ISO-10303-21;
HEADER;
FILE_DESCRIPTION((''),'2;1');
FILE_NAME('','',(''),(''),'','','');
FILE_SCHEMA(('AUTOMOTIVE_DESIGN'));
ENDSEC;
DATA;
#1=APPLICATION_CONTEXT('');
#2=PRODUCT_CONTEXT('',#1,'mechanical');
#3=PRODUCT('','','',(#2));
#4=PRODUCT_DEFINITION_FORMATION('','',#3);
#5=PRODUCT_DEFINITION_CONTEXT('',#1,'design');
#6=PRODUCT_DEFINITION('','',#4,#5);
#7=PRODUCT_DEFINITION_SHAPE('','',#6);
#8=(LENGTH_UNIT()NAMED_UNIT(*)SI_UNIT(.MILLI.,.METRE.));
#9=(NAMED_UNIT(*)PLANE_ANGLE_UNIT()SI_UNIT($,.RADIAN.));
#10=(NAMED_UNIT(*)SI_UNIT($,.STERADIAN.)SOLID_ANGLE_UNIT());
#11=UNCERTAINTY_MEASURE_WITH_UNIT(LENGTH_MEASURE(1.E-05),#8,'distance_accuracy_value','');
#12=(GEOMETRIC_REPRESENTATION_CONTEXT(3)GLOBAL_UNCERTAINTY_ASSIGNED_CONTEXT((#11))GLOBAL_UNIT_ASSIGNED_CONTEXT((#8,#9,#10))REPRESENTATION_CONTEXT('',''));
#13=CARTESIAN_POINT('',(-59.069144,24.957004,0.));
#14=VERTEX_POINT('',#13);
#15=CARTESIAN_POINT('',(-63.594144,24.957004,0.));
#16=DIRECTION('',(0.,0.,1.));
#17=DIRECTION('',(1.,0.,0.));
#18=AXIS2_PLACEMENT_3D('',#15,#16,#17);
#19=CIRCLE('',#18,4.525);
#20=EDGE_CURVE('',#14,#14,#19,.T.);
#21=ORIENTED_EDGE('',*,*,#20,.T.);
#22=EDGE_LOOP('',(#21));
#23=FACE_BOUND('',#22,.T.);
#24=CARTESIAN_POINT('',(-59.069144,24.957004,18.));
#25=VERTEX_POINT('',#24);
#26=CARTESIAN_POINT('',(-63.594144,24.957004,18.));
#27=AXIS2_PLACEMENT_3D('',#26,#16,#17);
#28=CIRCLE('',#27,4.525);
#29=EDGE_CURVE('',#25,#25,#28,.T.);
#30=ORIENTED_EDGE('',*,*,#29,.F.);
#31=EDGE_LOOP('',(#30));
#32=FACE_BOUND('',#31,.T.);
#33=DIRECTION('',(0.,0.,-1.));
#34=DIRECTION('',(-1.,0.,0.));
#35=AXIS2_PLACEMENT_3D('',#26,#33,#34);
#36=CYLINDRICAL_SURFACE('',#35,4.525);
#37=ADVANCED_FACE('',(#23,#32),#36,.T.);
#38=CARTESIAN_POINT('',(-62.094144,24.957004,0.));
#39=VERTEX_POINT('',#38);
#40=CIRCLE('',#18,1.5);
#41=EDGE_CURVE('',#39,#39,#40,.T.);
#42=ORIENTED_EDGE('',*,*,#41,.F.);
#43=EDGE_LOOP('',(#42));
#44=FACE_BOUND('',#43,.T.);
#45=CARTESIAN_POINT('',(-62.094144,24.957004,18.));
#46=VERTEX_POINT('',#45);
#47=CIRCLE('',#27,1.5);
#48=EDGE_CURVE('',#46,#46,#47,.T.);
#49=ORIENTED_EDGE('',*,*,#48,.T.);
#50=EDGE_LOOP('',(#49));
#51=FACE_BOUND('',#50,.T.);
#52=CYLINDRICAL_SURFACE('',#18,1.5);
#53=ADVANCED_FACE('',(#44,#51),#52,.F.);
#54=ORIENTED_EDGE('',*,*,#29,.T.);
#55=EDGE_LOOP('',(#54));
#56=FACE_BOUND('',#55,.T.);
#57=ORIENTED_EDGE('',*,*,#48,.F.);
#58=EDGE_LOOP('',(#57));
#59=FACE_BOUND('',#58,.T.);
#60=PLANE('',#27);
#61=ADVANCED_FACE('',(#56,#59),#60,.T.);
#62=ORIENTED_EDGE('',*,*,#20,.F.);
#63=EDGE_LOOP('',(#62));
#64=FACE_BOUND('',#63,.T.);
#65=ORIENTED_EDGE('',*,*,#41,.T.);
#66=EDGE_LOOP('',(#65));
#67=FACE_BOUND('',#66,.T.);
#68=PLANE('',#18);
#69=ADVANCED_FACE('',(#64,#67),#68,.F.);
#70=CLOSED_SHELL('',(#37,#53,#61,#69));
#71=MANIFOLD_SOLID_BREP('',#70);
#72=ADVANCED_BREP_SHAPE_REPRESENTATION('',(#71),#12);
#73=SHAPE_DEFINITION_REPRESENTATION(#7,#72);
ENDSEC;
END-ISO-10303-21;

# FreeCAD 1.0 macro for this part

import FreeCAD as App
import Part
import Sketcher

V = App.Vector
Q = App.Units.Quantity

doc = App.newDocument("Part")
body = doc.addObject("PartDesign::Body", "Body")

sketch1 = body.newObject("Sketcher::SketchObject", "Sketch")
sketch1.AttachmentSupport = (doc.getObject("XY_Plane"), [""])
sketch1.MapMode = "FlatFace"
sketch1.addGeometry(Part.Circle(V(-63.6, 25, 0), V(0, 0, 1), 4.5), False)
sketch1.addConstraint([
    Sketcher.Constraint("Diameter", 0, Q("9.05 mm")),
    Sketcher.Constraint("DistanceX", 0, 3, -1, 1, Q("63.594144 mm")),
    Sketcher.Constraint("DistanceY", -1, 1, 0, 3, Q("24.957004 mm")),
])
pad1 = body.newObject("PartDesign::Pad", "Pad")
pad1.Profile = sketch1
pad1.Length = 18

sketch2 = body.newObject("Sketcher::SketchObject", "Sketch001")
sketch2.AttachmentSupport = (doc.getObject("XY_Plane"), [""])
sketch2.MapMode = "FlatFace"
sketch2.AttachmentOffset = App.Placement(V(0, 0, 18), App.Rotation())
sketch2.addGeometry(Part.Circle(V(-63.6, 25, 0), V(0, 0, 1), 1.5), False)
sketch2.addConstraint([
    Sketcher.Constraint("Diameter", 0, Q("3 mm")),
    Sketcher.Constraint("DistanceX", 0, 3, -1, 1, Q("63.594144 mm")),
    Sketcher.Constraint("DistanceY", -1, 1, 0, 3, Q("24.957004 mm")),
])
pocket1 = body.newObject("PartDesign::Pocket", "Pocket")
pocket1.Profile = sketch2
pocket1.Length = 18

doc.recompute()
